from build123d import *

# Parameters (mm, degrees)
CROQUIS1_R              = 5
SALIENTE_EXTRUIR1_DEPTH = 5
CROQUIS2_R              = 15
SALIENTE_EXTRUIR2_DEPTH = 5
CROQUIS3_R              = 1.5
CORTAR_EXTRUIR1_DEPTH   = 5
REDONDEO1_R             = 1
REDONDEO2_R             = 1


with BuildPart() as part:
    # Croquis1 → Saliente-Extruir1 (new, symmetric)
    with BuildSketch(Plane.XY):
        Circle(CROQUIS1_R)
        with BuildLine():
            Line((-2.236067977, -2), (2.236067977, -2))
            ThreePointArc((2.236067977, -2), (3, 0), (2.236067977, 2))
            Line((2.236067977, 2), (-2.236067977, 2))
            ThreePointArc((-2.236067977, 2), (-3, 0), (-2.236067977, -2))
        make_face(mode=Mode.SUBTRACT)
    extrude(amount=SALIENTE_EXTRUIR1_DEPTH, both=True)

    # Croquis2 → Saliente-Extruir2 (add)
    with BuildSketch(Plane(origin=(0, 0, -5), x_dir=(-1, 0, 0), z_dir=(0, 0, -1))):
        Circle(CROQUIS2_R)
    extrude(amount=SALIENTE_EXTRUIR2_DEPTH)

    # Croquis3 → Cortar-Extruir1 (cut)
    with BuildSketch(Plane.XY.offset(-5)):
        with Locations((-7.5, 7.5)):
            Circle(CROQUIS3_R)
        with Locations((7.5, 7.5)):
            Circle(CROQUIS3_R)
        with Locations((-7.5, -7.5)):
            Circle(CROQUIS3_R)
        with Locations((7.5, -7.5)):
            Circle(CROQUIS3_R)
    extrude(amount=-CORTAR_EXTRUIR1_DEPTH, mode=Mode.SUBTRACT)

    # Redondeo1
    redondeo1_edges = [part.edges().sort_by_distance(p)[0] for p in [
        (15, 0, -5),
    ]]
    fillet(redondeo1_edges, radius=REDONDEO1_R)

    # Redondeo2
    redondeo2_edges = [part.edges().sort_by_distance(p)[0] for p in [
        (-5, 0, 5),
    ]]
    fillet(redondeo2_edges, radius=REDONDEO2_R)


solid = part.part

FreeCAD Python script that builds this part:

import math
import FreeCAD as App
import Part
import Sketcher
from FreeCAD import Vector
Q = App.Units.Quantity


def edges_at(feature, points):
    """Names of the edges that pass closest to the given points."""
    edges = feature.Shape.Edges
    near = lambda p: min(range(len(edges)), key=lambda i: edges[i].distToShape(Part.Vertex(*p))[0])
    return sorted({f"Edge{near(p) + 1}" for p in points})

doc = App.newDocument("Part")
body = doc.addObject("PartDesign::Body", "Body")

# Sketch on XY plane
sketch1 = body.newObject("Sketcher::SketchObject", "Sketch")
sketch1.AttachmentSupport = (doc.getObject("XY_Plane"), [""])
sketch1.MapMode = "FlatFace"
sketch1.addGeometry([
    Part.Circle(Vector(0, 0, 0), Vector(0, 0, 1), 5),  # 0
    Part.LineSegment(Vector(2.2, -2, 0), Vector(-2.2, -2, 0)),  # 1
    Part.ArcOfCircle(Part.Circle(Vector(0, 0, 0), Vector(0, 0, 1), 3), math.radians(138), math.radians(222)),  # 2
    Part.LineSegment(Vector(-2.2, 2, 0), Vector(2.2, 2, 0)),  # 3
    Part.ArcOfCircle(Part.Circle(Vector(0, 0, 0), Vector(0, 0, 1), 3), math.radians(-42), math.radians(42)),  # 4
], False)
sketch1.addConstraint([
    Sketcher.Constraint("Coincident", 1, 2, 2, 2),
    Sketcher.Constraint("Coincident", 2, 1, 3, 1),
    Sketcher.Constraint("Coincident", 3, 2, 4, 2),
    Sketcher.Constraint("Coincident", 4, 1, 1, 1),
    Sketcher.Constraint("Horizontal", 1),
    Sketcher.Constraint("Horizontal", 3),
    Sketcher.Constraint("Coincident", 0, 3, -1, 1),
    Sketcher.Constraint("Coincident", 2, 3, -1, 1),
    Sketcher.Constraint("Coincident", 4, 3, -1, 1),
    Sketcher.Constraint("Equal", 2, 4),
    Sketcher.Constraint("Vertical", 1, 2, 2, 1),
    Sketcher.Constraint("Diameter", 0, Q("10 mm")),
    Sketcher.Constraint("Radius", 2, Q("3 mm")),
    Sketcher.Constraint("DistanceY", 1, 2, -1, 1, Q("2 mm")),
])
pad1 = body.newObject("PartDesign::Pad", "Pad")
pad1.Profile = sketch1
pad1.Length = 10
pad1.Midplane = True

# Sketch on XY plane
sketch2 = body.newObject("Sketcher::SketchObject", "Sketch001")
sketch2.AttachmentSupport = (doc.getObject("XY_Plane"), [""])
sketch2.MapMode = "FlatFace"
sketch2.AttachmentOffset = App.Placement(Vector(0, 0, -5), App.Rotation())
sketch2.addGeometry(Part.Circle(Vector(0, 0, 0), Vector(0, 0, 1), 15), False)
sketch2.addConstraint([
    Sketcher.Constraint("Coincident", 0, 3, -1, 1),
    Sketcher.Constraint("Diameter", 0, Q("30 mm")),
])
pad2 = body.newObject("PartDesign::Pad", "Pad001")
pad2.Profile = sketch2
pad2.Length = 5
pad2.Reversed = True

# Sketch on XY plane
sketch3 = body.newObject("Sketcher::SketchObject", "Sketch002")
sketch3.AttachmentSupport = (doc.getObject("XY_Plane"), [""])
sketch3.MapMode = "FlatFace"
sketch3.AttachmentOffset = App.Placement(Vector(0, 0, -5), App.Rotation())
sketch3.addGeometry([
    Part.Circle(Vector(-7.5, 7.5, 0), Vector(0, 0, 1), 1.5),
    Part.Circle(Vector(7.5, 7.5, 0), Vector(0, 0, 1), 1.5),
    Part.Circle(Vector(-7.5, -7.5, 0), Vector(0, 0, 1), 1.5),
    Part.Circle(Vector(7.5, -7.5, 0), Vector(0, 0, 1), 1.5),
], False)
sketch3.addConstraint([
    Sketcher.Constraint("Equal", 0, 1),
    Sketcher.Constraint("Equal", 1, 2),
    Sketcher.Constraint("Equal", 2, 3),
    Sketcher.Constraint("Symmetric", 1, 3, 2, 3, -1, 1),
    Sketcher.Constraint("Symmetric", 0, 3, 3, 3, -1, 1),
    Sketcher.Constraint("Symmetric", 0, 3, 1, 3, -2),
    Sketcher.Constraint("Diameter", 0, Q("3 mm")),
    Sketcher.Constraint("DistanceX", 0, 3, 1, 3, Q("15 mm")),
    Sketcher.Constraint("DistanceY", 2, 3, 0, 3, Q("15 mm")),
])
pocket1 = body.newObject("PartDesign::Pocket", "Pocket")
pocket1.Profile = sketch3
pocket1.Length = 5
doc.recompute()

fillet = body.newObject("PartDesign::Fillet", "Fillet")
fillet.Base = (pocket1, edges_at(pocket1, [(15, 0, -5)]))
fillet.Radius = 1
doc.recompute()

fillet2 = body.newObject("PartDesign::Fillet", "Fillet001")
fillet2.Base = (fillet, edges_at(fillet, [(-5, 0, 5)]))
fillet2.Radius = 1

doc.recompute()
